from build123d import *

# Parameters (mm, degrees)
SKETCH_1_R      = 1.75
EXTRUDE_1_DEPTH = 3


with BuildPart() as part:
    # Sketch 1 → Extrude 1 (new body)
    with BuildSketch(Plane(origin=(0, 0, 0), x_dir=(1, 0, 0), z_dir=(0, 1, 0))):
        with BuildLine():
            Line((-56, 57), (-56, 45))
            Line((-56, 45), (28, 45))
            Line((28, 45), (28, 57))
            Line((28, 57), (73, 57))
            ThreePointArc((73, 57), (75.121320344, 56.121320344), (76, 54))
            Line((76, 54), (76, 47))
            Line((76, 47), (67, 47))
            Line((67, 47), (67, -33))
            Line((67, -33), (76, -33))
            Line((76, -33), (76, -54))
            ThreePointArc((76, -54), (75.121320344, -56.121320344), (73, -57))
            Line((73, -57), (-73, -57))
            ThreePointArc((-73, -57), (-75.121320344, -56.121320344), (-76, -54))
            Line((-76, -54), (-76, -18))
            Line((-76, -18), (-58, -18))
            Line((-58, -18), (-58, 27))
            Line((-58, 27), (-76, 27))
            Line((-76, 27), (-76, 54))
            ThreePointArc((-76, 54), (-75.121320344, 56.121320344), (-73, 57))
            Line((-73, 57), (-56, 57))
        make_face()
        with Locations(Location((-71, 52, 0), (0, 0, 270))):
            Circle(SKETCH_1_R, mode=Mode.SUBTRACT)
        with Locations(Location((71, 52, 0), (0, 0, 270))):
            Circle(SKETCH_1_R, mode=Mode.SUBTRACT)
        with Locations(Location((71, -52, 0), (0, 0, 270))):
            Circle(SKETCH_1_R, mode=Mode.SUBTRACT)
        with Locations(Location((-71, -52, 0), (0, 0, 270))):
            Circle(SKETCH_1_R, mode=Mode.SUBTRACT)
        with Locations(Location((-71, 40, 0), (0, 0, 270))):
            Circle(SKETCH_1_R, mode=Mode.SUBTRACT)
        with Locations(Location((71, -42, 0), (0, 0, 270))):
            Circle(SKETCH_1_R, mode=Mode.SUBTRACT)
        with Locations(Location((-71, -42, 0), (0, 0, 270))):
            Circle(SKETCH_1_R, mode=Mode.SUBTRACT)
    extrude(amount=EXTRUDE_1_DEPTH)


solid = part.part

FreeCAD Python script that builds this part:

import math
import FreeCAD as App
import Part
import Sketcher
from FreeCAD import Vector

doc = App.newDocument("Part")
params = doc.addObject("Spreadsheet::Sheet", "Params")
for row, (alias, value) in enumerate([
    ("sketch1_radius", "3 mm"),
    ("sketch1_diameter", "3.5 mm"),
    ("sketch1_width", "17 mm"),
    ("sketch1_width2", "18 mm"),
    ("sketch1_width3", "146 mm"),
    ("pad1_length", "3 mm"),
], start=1):
    params.set(f"A{row}", alias)
    params.set(f"B{row}", "=" + value)
    params.setAlias(f"B{row}", alias)

body = doc.addObject("PartDesign::Body", "Body")

sketch1 = body.newObject("Sketcher::SketchObject", "Sketch")
sketch1.AttachmentSupport = (doc.getObject("XZ_Plane"), [""])
sketch1.MapMode = "FlatFace"
sketch1.addGeometry(Part.LineSegment(Vector(-56, -45, 0), Vector(-56, -57, 0)), False)
sketch1.addGeometry(Part.LineSegment(Vector(-56, -57, 0), Vector(-73, -57, 0)), False)
sketch1.addGeometry(Part.ArcOfCircle(Part.Circle(Vector(-73, -54, 0), Vector(0, 0, 1), 3), math.radians(180), math.radians(270)), False)
sketch1.addGeometry(Part.LineSegment(Vector(-76, -54, 0), Vector(-76, -27, 0)), False)
sketch1.addGeometry(Part.LineSegment(Vector(-76, -27, 0), Vector(-58, -27, 0)), False)
sketch1.addGeometry(Part.LineSegment(Vector(-58, -27, 0), Vector(-58, 18, 0)), False)
sketch1.addGeometry(Part.LineSegment(Vector(-58, 18, 0), Vector(-76, 18, 0)), False)
sketch1.addGeometry(Part.LineSegment(Vector(-76, 18, 0), Vector(-76, 54, 0)), False)
sketch1.addGeometry(Part.ArcOfCircle(Part.Circle(Vector(-73, 54, 0), Vector(0, 0, 1), 3), math.radians(90), math.radians(180)), False)
sketch1.addGeometry(Part.LineSegment(Vector(-73, 57, 0), Vector(73, 57, 0)), False)
sketch1.addGeometry(Part.ArcOfCircle(Part.Circle(Vector(73, 54, 0), Vector(0, 0, 1), 3), math.radians(0), math.radians(90)), False)
sketch1.addGeometry(Part.LineSegment(Vector(76, 54, 0), Vector(76, 33, 0)), False)
sketch1.addGeometry(Part.LineSegment(Vector(76, 33, 0), Vector(67, 33, 0)), False)
sketch1.addGeometry(Part.LineSegment(Vector(67, 33, 0), Vector(67, -47, 0)), False)
sketch1.addGeometry(Part.LineSegment(Vector(67, -47, 0), Vector(76, -47, 0)), False)
sketch1.addGeometry(Part.LineSegment(Vector(76, -47, 0), Vector(76, -54, 0)), False)
sketch1.addGeometry(Part.ArcOfCircle(Part.Circle(Vector(73, -54, 0), Vector(0, 0, 1), 3), math.radians(-90), math.radians(0)), False)
sketch1.addGeometry(Part.LineSegment(Vector(73, -57, 0), Vector(28, -57, 0)), False)
sketch1.addGeometry(Part.LineSegment(Vector(28, -57, 0), Vector(28, -45, 0)), False)
sketch1.addGeometry(Part.LineSegment(Vector(28, -45, 0), Vector(-56, -45, 0)), False)
sketch1.addGeometry(Part.Circle(Vector(71, 52, 0), Vector(0, 0, 1), 1.8), False)
sketch1.addGeometry(Part.Circle(Vector(71, 42, 0), Vector(0, 0, 1), 1.8), False)
sketch1.addGeometry(Part.Circle(Vector(-71, 52, 0), Vector(0, 0, 1), 1.8), False)
sketch1.addGeometry(Part.Circle(Vector(-71, 42, 0), Vector(0, 0, 1), 1.8), False)
sketch1.addGeometry(Part.Circle(Vector(71, -52, 0), Vector(0, 0, 1), 1.8), False)
sketch1.addGeometry(Part.Circle(Vector(-71, -40, 0), Vector(0, 0, 1), 1.8), False)
sketch1.addGeometry(Part.Circle(Vector(-71, -52, 0), Vector(0, 0, 1), 1.8), False)
sketch1.addConstraint(Sketcher.Constraint("Coincident", 0, 2, 1, 1))
sketch1.addConstraint(Sketcher.Constraint("Tangent", 1, 2, 2, 2))
sketch1.addConstraint(Sketcher.Constraint("Tangent", 2, 1, 3, 1))
sketch1.addConstraint(Sketcher.Constraint("Coincident", 3, 2, 4, 1))
sketch1.addConstraint(Sketcher.Constraint("Coincident", 4, 2, 5, 1))
sketch1.addConstraint(Sketcher.Constraint("Coincident", 5, 2, 6, 1))
sketch1.addConstraint(Sketcher.Constraint("Coincident", 6, 2, 7, 1))
sketch1.addConstraint(Sketcher.Constraint("Tangent", 7, 2, 8, 2))
sketch1.addConstraint(Sketcher.Constraint("Tangent", 8, 1, 9, 1))
sketch1.addConstraint(Sketcher.Constraint("Tangent", 9, 2, 10, 2))
sketch1.addConstraint(Sketcher.Constraint("Tangent", 10, 1, 11, 1))
sketch1.addConstraint(Sketcher.Constraint("Coincident", 11, 2, 12, 1))
sketch1.addConstraint(Sketcher.Constraint("Coincident", 12, 2, 13, 1))
sketch1.addConstraint(Sketcher.Constraint("Coincident", 13, 2, 14, 1))
sketch1.addConstraint(Sketcher.Constraint("Coincident", 14, 2, 15, 1))
sketch1.addConstraint(Sketcher.Constraint("Tangent", 15, 2, 16, 2))
sketch1.addConstraint(Sketcher.Constraint("Tangent", 16, 1, 17, 1))
sketch1.addConstraint(Sketcher.Constraint("Coincident", 17, 2, 18, 1))
sketch1.addConstraint(Sketcher.Constraint("Coincident", 18, 2, 19, 1))
sketch1.addConstraint(Sketcher.Constraint("Coincident", 19, 2, 0, 1))
sketch1.addConstraint(Sketcher.Constraint("Vertical", 0))
sketch1.addConstraint(Sketcher.Constraint("Horizontal", 1))
sketch1.addConstraint(Sketcher.Constraint("Vertical", 3))
sketch1.addConstraint(Sketcher.Constraint("Horizontal", 4))
sketch1.addConstraint(Sketcher.Constraint("Vertical", 5))
sketch1.addConstraint(Sketcher.Constraint("Horizontal", 6))
sketch1.addConstraint(Sketcher.Constraint("Vertical", 7))
sketch1.addConstraint(Sketcher.Constraint("Horizontal", 9))
sketch1.addConstraint(Sketcher.Constraint("Vertical", 11))
sketch1.addConstraint(Sketcher.Constraint("Horizontal", 12))
sketch1.addConstraint(Sketcher.Constraint("Vertical", 13))
sketch1.addConstraint(Sketcher.Constraint("Horizontal", 14))
sketch1.addConstraint(Sketcher.Constraint("Vertical", 15))
sketch1.addConstraint(Sketcher.Constraint("Horizontal", 17))
sketch1.addConstraint(Sketcher.Constraint("Vertical", 18))
sketch1.addConstraint(Sketcher.Constraint("Horizontal", 19))
sketch1.addConstraint(Sketcher.Constraint("Equal", 2, 8))
sketch1.addConstraint(Sketcher.Constraint("Equal", 8, 10))
sketch1.addConstraint(Sketcher.Constraint("Equal", 10, 16))
sketch1.addConstraint(Sketcher.Constraint("Equal", 20, 21))
sketch1.addConstraint(Sketcher.Constraint("Equal", 21, 22))
sketch1.addConstraint(Sketcher.Constraint("Equal", 22, 23))
sketch1.addConstraint(Sketcher.Constraint("Equal", 23, 24))
sketch1.addConstraint(Sketcher.Constraint("Equal", 24, 25))
sketch1.addConstraint(Sketcher.Constraint("Equal", 25, 26))
sketch1.addConstraint(Sketcher.Constraint("Symmetric", 2, 3, 10, 3, -1, 1))
sketch1.addConstraint(Sketcher.Constraint("Symmetric", 8, 3, 16, 3, -1, 1))
sketch1.addConstraint(Sketcher.Constraint("Symmetric", 22, 3, 24, 3, -1, 1))
sketch1.addConstraint(Sketcher.Constraint("Symmetric", 20, 3, 26, 3, -1, 1))
sketch1.addConstraint(Sketcher.Constraint("Symmetric", 20, 3, 22, 3, -2))
sketch1.addConstraint(Sketcher.Constraint("Symmetric", 21, 3, 23, 3, -2))
sketch1.addConstraint(Sketcher.Constraint("Vertical", 2, 3, 8, 3))
sketch1.addConstraint(Sketcher.Constraint("Vertical", 20, 3, 21, 3))
sketch1.addConstraint(Sketcher.Constraint("Vertical", 23, 3, 25, 3))
sketch1.addConstraint(Sketcher.Constraint("Equal", 17, 5))
sketch1.addConstraint(Sketcher.Constraint("Radius", 2, 3.0))
sketch1.addConstraint(Sketcher.Constraint("Diameter", 20, 3.5))
sketch1.addConstraint(Sketcher.Constraint("DistanceX", 1, 2, 1, 1, 17.0))
sketch1.addConstraint(Sketcher.Constraint("DistanceX", 4, 1, 4, 2, 18.0))
sketch1.addConstraint(Sketcher.Constraint("DistanceX", 9, 1, 9, 2, 146.0))
sketch1.addConstraint(Sketcher.Constraint("DistanceX", 12, 2, 12, 1, 9.0))
sketch1.addConstraint(Sketcher.Constraint("DistanceX", 17, 2, 17, 1, 45.0))
sketch1.addConstraint(Sketcher.Constraint("DistanceY", 0, 2, 0, 1, 12.0))
sketch1.addConstraint(Sketcher.Constraint("DistanceY", 3, 1, 3, 2, 27.0))
sketch1.addConstraint(Sketcher.Constraint("DistanceY", 7, 1, 7, 2, 36.0))
sketch1.addConstraint(Sketcher.Constraint("DistanceY", 11, 2, 11, 1, 21.0))
sketch1.addConstraint(Sketcher.Constraint("DistanceY", 13, 2, 13, 1, 80.0))
sketch1.addConstraint(Sketcher.Constraint("DistanceX", -1, 1, 20, 3, 71.0))
sketch1.addConstraint(Sketcher.Constraint("DistanceY", -1, 1, 20, 3, 52.0))
sketch1.addConstraint(Sketcher.Constraint("DistanceY", -1, 1, 21, 3, 42.0))
sketch1.addConstraint(Sketcher.Constraint("DistanceY", 25, 3, -1, 1, 40.0))
sketch1.setExpression("Constraints[55]", "Params.sketch1_radius")
sketch1.setExpression("Constraints[56]", "Params.sketch1_diameter")
sketch1.setExpression("Constraints[57]", "Params.sketch1_width")
sketch1.setExpression("Constraints[58]", "Params.sketch1_width2")
sketch1.setExpression("Constraints[59]", "Params.sketch1_width3")
pad1 = body.newObject("PartDesign::Pad", "Pad")
pad1.Profile = sketch1
pad1.setExpression("Length", "Params.pad1_length")
pad1.Reversed = True

doc.recompute()
